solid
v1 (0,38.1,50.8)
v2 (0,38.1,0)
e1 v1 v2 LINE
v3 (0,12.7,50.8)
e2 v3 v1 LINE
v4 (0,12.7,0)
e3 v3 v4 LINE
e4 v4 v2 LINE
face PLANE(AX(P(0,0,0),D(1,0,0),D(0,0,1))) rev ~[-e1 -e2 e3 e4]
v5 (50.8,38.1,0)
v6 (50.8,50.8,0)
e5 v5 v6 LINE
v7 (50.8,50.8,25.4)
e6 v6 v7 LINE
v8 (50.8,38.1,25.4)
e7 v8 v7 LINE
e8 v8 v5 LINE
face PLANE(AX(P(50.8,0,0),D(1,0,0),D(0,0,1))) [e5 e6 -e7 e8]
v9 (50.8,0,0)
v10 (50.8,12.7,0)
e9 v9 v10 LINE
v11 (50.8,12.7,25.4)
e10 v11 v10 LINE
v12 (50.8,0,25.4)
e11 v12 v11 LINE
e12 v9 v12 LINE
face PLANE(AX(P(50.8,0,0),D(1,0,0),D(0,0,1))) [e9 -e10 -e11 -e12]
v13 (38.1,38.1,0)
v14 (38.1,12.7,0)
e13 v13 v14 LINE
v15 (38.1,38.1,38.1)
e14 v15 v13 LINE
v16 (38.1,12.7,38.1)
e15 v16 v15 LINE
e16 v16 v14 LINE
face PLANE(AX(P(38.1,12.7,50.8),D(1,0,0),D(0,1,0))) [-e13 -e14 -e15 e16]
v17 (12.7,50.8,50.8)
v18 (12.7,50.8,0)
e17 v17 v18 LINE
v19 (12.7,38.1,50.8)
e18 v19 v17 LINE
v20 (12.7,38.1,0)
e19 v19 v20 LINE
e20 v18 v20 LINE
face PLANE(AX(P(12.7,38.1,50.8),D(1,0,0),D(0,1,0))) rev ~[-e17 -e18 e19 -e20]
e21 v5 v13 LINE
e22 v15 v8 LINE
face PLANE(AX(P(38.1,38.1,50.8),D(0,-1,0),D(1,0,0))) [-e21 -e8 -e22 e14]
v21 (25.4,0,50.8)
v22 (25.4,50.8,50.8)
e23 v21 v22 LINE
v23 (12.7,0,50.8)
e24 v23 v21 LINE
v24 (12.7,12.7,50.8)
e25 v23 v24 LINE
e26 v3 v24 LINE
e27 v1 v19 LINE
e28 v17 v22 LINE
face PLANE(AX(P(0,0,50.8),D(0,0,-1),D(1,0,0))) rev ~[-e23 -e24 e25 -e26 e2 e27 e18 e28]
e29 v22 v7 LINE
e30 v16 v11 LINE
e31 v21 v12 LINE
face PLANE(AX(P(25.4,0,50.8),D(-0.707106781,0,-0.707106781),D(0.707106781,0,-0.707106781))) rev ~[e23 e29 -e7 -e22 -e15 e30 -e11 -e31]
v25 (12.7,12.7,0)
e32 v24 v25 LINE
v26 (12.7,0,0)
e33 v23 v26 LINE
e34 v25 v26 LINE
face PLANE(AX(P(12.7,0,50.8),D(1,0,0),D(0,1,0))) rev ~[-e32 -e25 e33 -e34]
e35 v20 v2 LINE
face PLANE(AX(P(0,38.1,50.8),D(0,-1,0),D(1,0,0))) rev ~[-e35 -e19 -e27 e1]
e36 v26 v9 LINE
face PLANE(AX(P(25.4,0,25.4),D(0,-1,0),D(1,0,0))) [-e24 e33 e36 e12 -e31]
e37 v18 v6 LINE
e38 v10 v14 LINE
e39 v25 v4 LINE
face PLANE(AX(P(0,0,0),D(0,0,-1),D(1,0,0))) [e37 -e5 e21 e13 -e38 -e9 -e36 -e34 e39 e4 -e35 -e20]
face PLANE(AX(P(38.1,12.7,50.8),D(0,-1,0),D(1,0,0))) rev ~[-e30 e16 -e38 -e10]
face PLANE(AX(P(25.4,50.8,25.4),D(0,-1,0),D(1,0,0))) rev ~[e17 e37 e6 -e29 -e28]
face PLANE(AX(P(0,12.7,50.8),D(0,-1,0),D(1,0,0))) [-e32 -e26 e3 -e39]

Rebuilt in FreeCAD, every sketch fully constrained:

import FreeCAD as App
import Part
import Sketcher
Q = App.Units.Quantity


def add_polygon(sketch, points):
    """Adds a closed chain of lines whose ends are joined by coincident constraints."""
    first, n = sketch.GeometryCount, len(points)
    for a, b in zip(points, points[1:] + points[:1]):
        sketch.addGeometry(Part.LineSegment(App.Vector(*a, 0), App.Vector(*b, 0)), False)
    for i in range(n):
        sketch.addConstraint(Sketcher.Constraint("Coincident", first + i, 2, first + (i + 1) % n, 1))

doc = App.newDocument("Part")
body = doc.addObject("PartDesign::Body", "Body")

sketch1 = body.newObject("Sketcher::SketchObject", "Sketch")
sketch1.AttachmentSupport = (doc.getObject("XZ_Plane"), [""])
sketch1.MapMode = "FlatFace"
add_polygon(sketch1, [(0, 51), (0, 0), (51, 0), (51, 51)])
sketch1.addConstraint([
    Sketcher.Constraint("Vertical", 0),
    Sketcher.Constraint("Horizontal", 1),
    Sketcher.Constraint("Vertical", 2),
    Sketcher.Constraint("Horizontal", 3),
    Sketcher.Constraint("Coincident", 0, 2, -1, 1),
    Sketcher.Constraint("Equal", 3, 0),
    Sketcher.Constraint("DistanceX", 1, 1, 1, 2, Q("2 in")),
])
pad1 = body.newObject("PartDesign::Pad", "Pad")
pad1.Profile = sketch1
pad1.Length = Q("2 in")
pad1.Reversed = True

sketch2 = body.newObject("Sketcher::SketchObject", "Sketch001")
sketch2.AttachmentSupport = (doc.getObject("XY_Plane"), [""])
sketch2.MapMode = "FlatFace"
sketch2.AttachmentOffset = App.Placement(App.Vector(0, 0, 2 * 25.4), App.Rotation())
add_polygon(sketch2, [(0, 51), (0, 38), (13, 38), (13, 51)])
add_polygon(sketch2, [(0, 13), (0, 0), (13, 0), (13, 13)])
add_polygon(sketch2, [(38, 38), (38, 13), (51, 13), (51, 38)])
sketch2.addConstraint([
    Sketcher.Constraint("Vertical", 0),
    Sketcher.Constraint("Horizontal", 1),
    Sketcher.Constraint("Vertical", 2),
    Sketcher.Constraint("Horizontal", 3),
    Sketcher.Constraint("Vertical", 4),
    Sketcher.Constraint("Horizontal", 5),
    Sketcher.Constraint("Vertical", 6),
    Sketcher.Constraint("Horizontal", 7),
    Sketcher.Constraint("Vertical", 8),
    Sketcher.Constraint("Horizontal", 9),
    Sketcher.Constraint("Vertical", 10),
    Sketcher.Constraint("Horizontal", 11),
    Sketcher.Constraint("Coincident", 4, 2, -1, 1),
    Sketcher.Constraint("PointOnObject", 0, 2, -2),
    Sketcher.Constraint("Horizontal", 7, 2, 8, 2),
    Sketcher.Constraint("Horizontal", 1, 2, 10, 2),
    Sketcher.Constraint("Vertical", 2, 2, 5, 2),
    Sketcher.Constraint("Equal", 7, 9),
    Sketcher.Constraint("Equal", 11, 0),
    Sketcher.Constraint("Equal", 2, 4),
    Sketcher.Constraint("DistanceY", 8, 2, 8, 1, Q("1 in")),
    Sketcher.Constraint("DistanceX", 1, 1, 1, 2, Q("0.5 in")),
    Sketcher.Constraint("DistanceX", -1, 1, 9, 2, Q("2 in")),
])
pocket1 = body.newObject("PartDesign::Pocket", "Pocket")
pocket1.Profile = sketch2
pocket1.Length = Q("3 in")

sketch3 = body.newObject("Sketcher::SketchObject", "Sketch002")
sketch3.AttachmentSupport = (doc.getObject("XZ_Plane"), [""])
sketch3.MapMode = "FlatFace"
add_polygon(sketch3, [(51, 51), (25, 51), (51, 25)])
sketch3.addConstraint([
    Sketcher.Constraint("Horizontal", 0),
    Sketcher.Constraint("Vertical", 2),
    Sketcher.Constraint("Equal", 0, 2),
    Sketcher.Constraint("DistanceX", 0, 2, 0, 1, Q("1 in")),
    Sketcher.Constraint("DistanceX", -1, 1, 0, 2, Q("1 in")),
    Sketcher.Constraint("DistanceY", -1, 1, 0, 2, Q("2 in")),
])
pocket2 = body.newObject("PartDesign::Pocket", "Pocket001")
pocket2.Profile = sketch3
pocket2.Length = Q("4 in")

doc.recompute()
